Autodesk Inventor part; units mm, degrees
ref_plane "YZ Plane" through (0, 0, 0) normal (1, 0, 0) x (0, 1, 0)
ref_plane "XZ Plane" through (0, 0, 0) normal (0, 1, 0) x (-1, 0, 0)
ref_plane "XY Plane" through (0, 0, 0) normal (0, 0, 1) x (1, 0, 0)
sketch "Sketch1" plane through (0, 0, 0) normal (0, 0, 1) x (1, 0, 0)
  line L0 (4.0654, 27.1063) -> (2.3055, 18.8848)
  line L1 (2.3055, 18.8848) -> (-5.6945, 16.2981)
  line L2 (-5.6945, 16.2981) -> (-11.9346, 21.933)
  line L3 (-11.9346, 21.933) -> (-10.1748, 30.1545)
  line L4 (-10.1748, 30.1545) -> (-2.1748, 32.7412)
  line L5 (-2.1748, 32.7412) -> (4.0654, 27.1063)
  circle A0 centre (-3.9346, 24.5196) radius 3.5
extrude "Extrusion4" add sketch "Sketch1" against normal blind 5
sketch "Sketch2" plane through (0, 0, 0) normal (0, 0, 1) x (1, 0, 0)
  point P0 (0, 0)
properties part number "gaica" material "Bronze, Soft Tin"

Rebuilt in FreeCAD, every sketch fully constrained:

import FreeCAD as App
import Part
import Sketcher
from FreeCAD import Vector


def add_polygon(sketch, points):
    """Adds a closed chain of lines whose ends are joined by coincident constraints."""
    first, n = sketch.GeometryCount, len(points)
    for a, b in zip(points, points[1:] + points[:1]):
        sketch.addGeometry(Part.LineSegment(App.Vector(*a, 0), App.Vector(*b, 0)), False)
    for i in range(n):
        sketch.addConstraint(Sketcher.Constraint("Coincident", first + i, 2, first + (i + 1) % n, 1))

doc = App.newDocument("Part")
body = doc.addObject("PartDesign::Body", "Body")

# Sketch on XY plane
sketch1 = body.newObject("Sketcher::SketchObject", "Sketch")
sketch1.AttachmentSupport = (doc.getObject("XY_Plane"), [""])
sketch1.MapMode = "FlatFace"
add_polygon(sketch1, [(2.3, 18.9), (4.1, 27.1), (-2.2, 32.7), (-10.2, 30.2), (-11.9, 21.9), (-5.7, 16.3)])  # lines 0-5
sketch1.addGeometry(Part.Circle(Vector(-3.9, 24.5, 0), Vector(0, 0, 1), 3.5), False)  # 6
sketch1.addConstraint(Sketcher.Constraint("Parallel", 0, 3))
sketch1.addConstraint(Sketcher.Constraint("Parallel", 1, 4))
sketch1.addConstraint(Sketcher.Constraint("Parallel", 2, 5))
sketch1.addConstraint(Sketcher.Constraint("Equal", 0, 1))
sketch1.addConstraint(Sketcher.Constraint("Equal", 1, 2))
sketch1.addConstraint(Sketcher.Constraint("Equal", 2, 3))
sketch1.addConstraint(Sketcher.Constraint("Diameter", 6, 7.0))
sketch1.addConstraint(Sketcher.Constraint("DistanceX", 6, 3, 0, 2, 8.0))
sketch1.addConstraint(Sketcher.Constraint("DistanceX", 2, 2, 1, 2, 8.0))
sketch1.addConstraint(Sketcher.Constraint("DistanceX", 3, 2, 6, 3, 8.0))
sketch1.addConstraint(Sketcher.Constraint("DistanceX", 4, 2, 6, 3, 1.76))
sketch1.addConstraint(Sketcher.Constraint("DistanceY", -1, 1, 3, 2, 21.933))
sketch1.addConstraint(Sketcher.Constraint("DistanceY", -1, 1, 4, 2, 16.298))
sketch1.addConstraint(Sketcher.Constraint("DistanceY", 6, 3, 2, 2, 5.635))
sketch1.addConstraint(Sketcher.Constraint("DistanceX", 6, 3, -1, 1, 3.9346))
pad1 = body.newObject("PartDesign::Pad", "Pad")
pad1.Profile = sketch1
pad1.Length = 5
pad1.Reversed = True

doc.recompute()
